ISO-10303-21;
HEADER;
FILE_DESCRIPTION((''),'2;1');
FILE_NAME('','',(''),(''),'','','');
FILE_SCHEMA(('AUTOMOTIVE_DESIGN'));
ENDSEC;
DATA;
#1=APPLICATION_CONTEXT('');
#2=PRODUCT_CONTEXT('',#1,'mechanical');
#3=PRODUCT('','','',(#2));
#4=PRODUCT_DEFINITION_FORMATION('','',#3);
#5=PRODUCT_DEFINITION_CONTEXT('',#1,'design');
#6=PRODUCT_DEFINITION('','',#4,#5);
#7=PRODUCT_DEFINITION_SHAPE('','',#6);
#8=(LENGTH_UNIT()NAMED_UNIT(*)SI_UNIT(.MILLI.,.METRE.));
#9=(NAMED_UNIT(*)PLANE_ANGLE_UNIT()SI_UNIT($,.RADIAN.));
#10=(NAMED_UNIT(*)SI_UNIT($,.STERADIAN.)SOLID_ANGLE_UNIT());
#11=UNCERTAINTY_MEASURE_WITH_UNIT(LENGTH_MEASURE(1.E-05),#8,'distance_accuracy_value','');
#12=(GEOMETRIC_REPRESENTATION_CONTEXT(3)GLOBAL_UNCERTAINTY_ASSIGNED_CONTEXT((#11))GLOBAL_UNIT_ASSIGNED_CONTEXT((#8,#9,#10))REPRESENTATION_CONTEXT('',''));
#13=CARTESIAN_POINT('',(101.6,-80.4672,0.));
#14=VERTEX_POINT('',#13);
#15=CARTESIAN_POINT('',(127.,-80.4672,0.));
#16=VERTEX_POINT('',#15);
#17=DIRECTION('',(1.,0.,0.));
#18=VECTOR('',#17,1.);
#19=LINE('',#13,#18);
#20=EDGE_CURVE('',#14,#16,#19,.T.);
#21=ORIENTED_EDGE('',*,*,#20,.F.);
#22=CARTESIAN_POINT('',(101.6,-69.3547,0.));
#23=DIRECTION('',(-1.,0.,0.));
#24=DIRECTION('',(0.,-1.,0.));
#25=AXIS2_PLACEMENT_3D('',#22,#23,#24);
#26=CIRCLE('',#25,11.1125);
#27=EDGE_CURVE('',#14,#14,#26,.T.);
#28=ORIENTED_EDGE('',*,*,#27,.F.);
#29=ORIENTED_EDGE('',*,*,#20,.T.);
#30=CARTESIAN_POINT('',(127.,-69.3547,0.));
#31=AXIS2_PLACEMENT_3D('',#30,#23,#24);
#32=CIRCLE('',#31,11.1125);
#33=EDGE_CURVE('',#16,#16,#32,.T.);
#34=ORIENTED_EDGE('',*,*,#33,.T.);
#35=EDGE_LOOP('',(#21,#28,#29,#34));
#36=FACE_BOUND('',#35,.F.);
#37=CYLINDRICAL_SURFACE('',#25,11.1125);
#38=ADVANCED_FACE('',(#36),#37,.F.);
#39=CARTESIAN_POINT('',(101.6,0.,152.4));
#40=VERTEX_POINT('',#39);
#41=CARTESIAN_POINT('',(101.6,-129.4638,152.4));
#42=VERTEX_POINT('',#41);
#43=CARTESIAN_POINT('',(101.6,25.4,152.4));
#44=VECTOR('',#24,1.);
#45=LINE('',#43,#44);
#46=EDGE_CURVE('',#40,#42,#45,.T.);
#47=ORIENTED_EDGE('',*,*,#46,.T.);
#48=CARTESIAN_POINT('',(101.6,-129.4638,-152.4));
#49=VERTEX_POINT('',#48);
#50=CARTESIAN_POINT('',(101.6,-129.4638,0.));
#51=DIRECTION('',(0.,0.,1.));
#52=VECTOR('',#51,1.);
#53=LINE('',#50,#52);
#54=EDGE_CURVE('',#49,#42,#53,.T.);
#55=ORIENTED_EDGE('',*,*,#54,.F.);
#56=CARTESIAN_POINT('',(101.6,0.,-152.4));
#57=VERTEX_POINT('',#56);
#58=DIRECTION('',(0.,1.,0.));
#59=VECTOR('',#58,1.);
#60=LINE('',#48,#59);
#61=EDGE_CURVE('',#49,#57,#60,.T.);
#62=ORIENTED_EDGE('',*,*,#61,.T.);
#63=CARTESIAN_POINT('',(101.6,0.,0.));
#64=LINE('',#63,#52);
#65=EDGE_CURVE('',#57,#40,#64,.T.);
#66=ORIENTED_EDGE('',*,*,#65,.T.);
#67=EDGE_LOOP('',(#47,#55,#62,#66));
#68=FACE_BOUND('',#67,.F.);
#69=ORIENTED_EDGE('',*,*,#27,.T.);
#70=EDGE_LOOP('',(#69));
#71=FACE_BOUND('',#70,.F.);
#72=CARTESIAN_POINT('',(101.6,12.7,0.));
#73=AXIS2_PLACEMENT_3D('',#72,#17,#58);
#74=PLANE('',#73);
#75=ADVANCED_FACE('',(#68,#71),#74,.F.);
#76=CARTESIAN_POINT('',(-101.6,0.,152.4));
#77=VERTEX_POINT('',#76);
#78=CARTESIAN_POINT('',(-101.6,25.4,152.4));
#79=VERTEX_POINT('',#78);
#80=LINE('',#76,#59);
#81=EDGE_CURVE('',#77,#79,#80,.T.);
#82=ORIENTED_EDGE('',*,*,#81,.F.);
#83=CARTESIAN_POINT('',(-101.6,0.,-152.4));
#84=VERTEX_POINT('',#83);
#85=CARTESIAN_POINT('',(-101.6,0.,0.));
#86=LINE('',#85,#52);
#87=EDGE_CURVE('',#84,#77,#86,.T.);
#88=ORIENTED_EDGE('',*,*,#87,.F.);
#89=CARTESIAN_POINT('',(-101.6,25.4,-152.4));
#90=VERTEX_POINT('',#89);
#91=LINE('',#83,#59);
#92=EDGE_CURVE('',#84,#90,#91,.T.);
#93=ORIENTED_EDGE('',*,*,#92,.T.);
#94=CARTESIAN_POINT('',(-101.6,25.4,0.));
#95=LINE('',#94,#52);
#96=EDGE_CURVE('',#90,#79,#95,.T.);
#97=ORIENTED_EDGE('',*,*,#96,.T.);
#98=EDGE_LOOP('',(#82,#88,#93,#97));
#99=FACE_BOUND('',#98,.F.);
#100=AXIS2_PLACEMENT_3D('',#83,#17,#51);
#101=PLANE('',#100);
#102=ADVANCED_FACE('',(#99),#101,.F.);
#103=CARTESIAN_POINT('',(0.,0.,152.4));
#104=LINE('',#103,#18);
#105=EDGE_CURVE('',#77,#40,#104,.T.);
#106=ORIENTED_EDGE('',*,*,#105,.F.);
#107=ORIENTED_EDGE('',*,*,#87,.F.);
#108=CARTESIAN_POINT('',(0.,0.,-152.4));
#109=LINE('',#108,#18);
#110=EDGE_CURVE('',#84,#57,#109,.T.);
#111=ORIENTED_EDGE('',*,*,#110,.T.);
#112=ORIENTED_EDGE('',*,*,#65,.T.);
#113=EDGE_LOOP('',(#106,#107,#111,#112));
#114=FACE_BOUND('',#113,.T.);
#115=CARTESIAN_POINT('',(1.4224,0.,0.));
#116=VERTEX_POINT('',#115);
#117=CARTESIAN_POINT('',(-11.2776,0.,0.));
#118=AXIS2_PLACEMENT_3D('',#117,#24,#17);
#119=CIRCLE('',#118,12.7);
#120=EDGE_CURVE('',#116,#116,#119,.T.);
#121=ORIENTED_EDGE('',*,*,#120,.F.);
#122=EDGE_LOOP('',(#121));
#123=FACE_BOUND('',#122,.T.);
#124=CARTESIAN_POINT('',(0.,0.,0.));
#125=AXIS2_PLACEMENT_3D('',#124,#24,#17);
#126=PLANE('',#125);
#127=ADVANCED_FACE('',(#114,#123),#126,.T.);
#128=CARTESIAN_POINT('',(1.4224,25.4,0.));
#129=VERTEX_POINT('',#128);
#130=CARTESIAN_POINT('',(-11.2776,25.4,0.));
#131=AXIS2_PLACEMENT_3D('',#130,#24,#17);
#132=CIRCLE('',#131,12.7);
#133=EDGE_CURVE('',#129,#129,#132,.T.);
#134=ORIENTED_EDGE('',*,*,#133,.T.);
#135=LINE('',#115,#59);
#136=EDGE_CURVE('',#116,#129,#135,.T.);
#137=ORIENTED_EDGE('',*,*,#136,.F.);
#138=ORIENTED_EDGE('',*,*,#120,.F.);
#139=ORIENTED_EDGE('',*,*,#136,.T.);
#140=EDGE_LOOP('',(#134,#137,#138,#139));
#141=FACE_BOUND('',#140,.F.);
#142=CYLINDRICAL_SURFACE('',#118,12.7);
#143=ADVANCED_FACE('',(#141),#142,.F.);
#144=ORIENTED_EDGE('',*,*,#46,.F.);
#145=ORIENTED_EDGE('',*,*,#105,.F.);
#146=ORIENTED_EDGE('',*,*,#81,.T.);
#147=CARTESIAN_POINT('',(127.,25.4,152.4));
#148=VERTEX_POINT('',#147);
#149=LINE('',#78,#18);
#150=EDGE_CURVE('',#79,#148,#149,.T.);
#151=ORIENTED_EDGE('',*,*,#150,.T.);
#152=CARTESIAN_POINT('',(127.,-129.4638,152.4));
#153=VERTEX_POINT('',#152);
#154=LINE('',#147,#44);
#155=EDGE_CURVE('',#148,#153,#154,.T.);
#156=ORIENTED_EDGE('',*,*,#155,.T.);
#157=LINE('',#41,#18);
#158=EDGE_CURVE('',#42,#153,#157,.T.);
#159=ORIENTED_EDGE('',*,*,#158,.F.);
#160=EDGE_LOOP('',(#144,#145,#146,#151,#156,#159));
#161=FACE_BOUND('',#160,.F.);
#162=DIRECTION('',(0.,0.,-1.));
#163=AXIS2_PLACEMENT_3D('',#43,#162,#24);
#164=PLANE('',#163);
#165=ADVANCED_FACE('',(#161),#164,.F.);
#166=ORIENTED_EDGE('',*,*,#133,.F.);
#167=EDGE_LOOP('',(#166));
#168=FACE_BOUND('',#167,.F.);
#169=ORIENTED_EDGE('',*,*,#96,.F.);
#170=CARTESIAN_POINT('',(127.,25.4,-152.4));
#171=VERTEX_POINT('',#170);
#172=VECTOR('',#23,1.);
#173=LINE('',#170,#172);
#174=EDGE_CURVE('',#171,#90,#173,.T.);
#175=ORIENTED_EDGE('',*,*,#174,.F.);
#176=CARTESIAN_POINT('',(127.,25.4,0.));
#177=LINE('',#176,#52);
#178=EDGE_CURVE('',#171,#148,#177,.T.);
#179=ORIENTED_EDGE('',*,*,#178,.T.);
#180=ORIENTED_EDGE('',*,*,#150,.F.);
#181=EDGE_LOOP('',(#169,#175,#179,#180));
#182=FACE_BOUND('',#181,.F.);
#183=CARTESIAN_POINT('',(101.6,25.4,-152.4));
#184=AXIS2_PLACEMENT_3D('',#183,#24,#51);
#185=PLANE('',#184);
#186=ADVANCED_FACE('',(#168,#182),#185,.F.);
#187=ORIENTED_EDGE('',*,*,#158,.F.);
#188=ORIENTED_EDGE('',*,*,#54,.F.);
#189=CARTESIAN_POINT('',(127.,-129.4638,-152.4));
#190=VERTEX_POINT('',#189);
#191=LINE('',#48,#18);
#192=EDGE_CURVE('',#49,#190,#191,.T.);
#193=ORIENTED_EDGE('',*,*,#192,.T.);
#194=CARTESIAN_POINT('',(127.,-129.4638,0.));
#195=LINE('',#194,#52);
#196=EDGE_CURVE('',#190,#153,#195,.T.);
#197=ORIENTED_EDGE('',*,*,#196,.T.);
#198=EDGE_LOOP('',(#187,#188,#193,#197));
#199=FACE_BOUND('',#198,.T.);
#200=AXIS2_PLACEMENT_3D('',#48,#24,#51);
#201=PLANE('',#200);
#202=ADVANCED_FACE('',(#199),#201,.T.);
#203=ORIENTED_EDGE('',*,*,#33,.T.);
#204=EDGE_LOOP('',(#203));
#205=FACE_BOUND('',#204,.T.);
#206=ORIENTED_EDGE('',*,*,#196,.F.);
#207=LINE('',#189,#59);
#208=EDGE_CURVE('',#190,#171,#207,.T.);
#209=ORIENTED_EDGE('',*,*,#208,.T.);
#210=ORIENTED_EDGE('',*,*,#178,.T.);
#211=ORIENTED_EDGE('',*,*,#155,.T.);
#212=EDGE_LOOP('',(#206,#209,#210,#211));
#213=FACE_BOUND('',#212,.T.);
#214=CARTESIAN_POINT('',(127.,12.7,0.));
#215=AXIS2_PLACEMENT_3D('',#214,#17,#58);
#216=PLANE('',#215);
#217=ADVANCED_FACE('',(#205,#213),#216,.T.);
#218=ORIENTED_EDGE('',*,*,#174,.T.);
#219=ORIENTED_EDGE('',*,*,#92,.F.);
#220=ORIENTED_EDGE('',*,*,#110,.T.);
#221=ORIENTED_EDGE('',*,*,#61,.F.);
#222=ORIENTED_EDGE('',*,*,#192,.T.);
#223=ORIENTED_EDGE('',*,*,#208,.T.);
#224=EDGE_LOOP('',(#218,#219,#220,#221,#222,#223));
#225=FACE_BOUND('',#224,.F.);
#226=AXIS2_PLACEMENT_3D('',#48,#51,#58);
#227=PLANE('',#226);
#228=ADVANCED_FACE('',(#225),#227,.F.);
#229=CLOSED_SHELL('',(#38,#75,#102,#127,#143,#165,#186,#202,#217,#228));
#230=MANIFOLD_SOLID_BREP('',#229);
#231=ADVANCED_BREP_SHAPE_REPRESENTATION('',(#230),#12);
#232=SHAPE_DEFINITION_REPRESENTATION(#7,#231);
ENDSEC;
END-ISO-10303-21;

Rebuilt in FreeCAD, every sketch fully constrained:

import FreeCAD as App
import Part
import Sketcher
from FreeCAD import Vector
Q = App.Units.Quantity

doc = App.newDocument("Part")
body = doc.addObject("PartDesign::Body", "Body")

sketch1 = body.newObject("Sketcher::SketchObject", "Sketch")
sketch1.AttachmentSupport = (doc.getObject("XZ_Plane"), [""])
sketch1.MapMode = "FlatFace"
sketch1.addGeometry(Part.LineSegment(Vector(-102, 152, 0), Vector(-102, -152, 0)), False)
sketch1.addGeometry(Part.LineSegment(Vector(-102, -152, 0), Vector(102, -152, 0)), False)
sketch1.addGeometry(Part.LineSegment(Vector(102, -152, 0), Vector(102, 152, 0)), False)
sketch1.addGeometry(Part.LineSegment(Vector(102, 152, 0), Vector(-102, 152, 0)), False)
sketch1.addConstraint(Sketcher.Constraint("Coincident", 0, 2, 1, 1))
sketch1.addConstraint(Sketcher.Constraint("Coincident", 1, 2, 2, 1))
sketch1.addConstraint(Sketcher.Constraint("Coincident", 2, 2, 3, 1))
sketch1.addConstraint(Sketcher.Constraint("Coincident", 3, 2, 0, 1))
sketch1.addConstraint(Sketcher.Constraint("Vertical", 0))
sketch1.addConstraint(Sketcher.Constraint("Horizontal", 1))
sketch1.addConstraint(Sketcher.Constraint("Vertical", 2))
sketch1.addConstraint(Sketcher.Constraint("Horizontal", 3))
sketch1.addConstraint(Sketcher.Constraint("Symmetric", 0, 2, 2, 2, -1, 1))
sketch1.addConstraint(Sketcher.Constraint("DistanceX", 1, 1, 1, 2, Q("8 in")))
sketch1.addConstraint(Sketcher.Constraint("DistanceY", 0, 2, 0, 1, Q("12 in")))
pad1 = body.newObject("PartDesign::Pad", "Pad")
pad1.Profile = sketch1
pad1.Length = Q("1 in")
pad1.Reversed = True

sketch2 = body.newObject("Sketcher::SketchObject", "Sketch001")
sketch2.AttachmentSupport = (doc.getObject("YZ_Plane"), [""])
sketch2.MapMode = "FlatFace"
sketch2.AttachmentOffset = App.Placement(Vector(0, 0, 4 * 25.4), App.Rotation())
sketch2.addGeometry(Part.LineSegment(Vector(25, -152, 0), Vector(25, 152, 0)), False)
sketch2.addGeometry(Part.LineSegment(Vector(25, 152, 0), Vector(-129, 152, 0)), False)
sketch2.addGeometry(Part.LineSegment(Vector(-129, 152, 0), Vector(-129, -152, 0)), False)
sketch2.addGeometry(Part.LineSegment(Vector(-129, -152, 0), Vector(25, -152, 0)), False)
sketch2.addConstraint(Sketcher.Constraint("Coincident", 0, 2, 1, 1))
sketch2.addConstraint(Sketcher.Constraint("Coincident", 1, 2, 2, 1))
sketch2.addConstraint(Sketcher.Constraint("Coincident", 2, 2, 3, 1))
sketch2.addConstraint(Sketcher.Constraint("Coincident", 3, 2, 0, 1))
sketch2.addConstraint(Sketcher.Constraint("Vertical", 0))
sketch2.addConstraint(Sketcher.Constraint("Horizontal", 1))
sketch2.addConstraint(Sketcher.Constraint("Vertical", 2))
sketch2.addConstraint(Sketcher.Constraint("Horizontal", 3))
sketch2.addConstraint(Sketcher.Constraint("DistanceY", 0, 1, 0, 2, Q("12 in")))
sketch2.addConstraint(Sketcher.Constraint("DistanceX", -1, 1, 0, 2, Q("1 in")))
sketch2.addConstraint(Sketcher.Constraint("DistanceY", -1, 1, 0, 2, Q("6 in")))
sketch2.addConstraint(Sketcher.Constraint("DistanceX", 1, 2, 1, 1, Q("6.097 in")))
pad2 = body.newObject("PartDesign::Pad", "Pad001")
pad2.Profile = sketch2
pad2.Length = Q("1 in")

sketch3 = body.newObject("Sketcher::SketchObject", "Sketch002")
sketch3.AttachmentSupport = (doc.getObject("XZ_Plane"), [""])
sketch3.MapMode = "FlatFace"
sketch3.addGeometry(Part.Circle(Vector(-11, 0, 0), Vector(0, 0, 1), 13), False)
sketch3.addConstraint(Sketcher.Constraint("PointOnObject", 0, 3, -1))
sketch3.addConstraint(Sketcher.Constraint("Diameter", 0, Q("1 in")))
sketch3.addConstraint(Sketcher.Constraint("DistanceX", 0, 3, -1, 1, Q("0.444 in")))
pocket1 = body.newObject("PartDesign::Pocket", "Pocket")
pocket1.Profile = sketch3
pocket1.Type = "ThroughAll"

sketch4 = body.newObject("Sketcher::SketchObject", "Sketch003")
sketch4.AttachmentSupport = (doc.getObject("YZ_Plane"), [""])
sketch4.MapMode = "FlatFace"
sketch4.AttachmentOffset = App.Placement(Vector(0, 0, 4 * 25.4), App.Rotation())
sketch4.addGeometry(Part.Circle(Vector(-69, 0, 0), Vector(0, 0, 1), 11), False)
sketch4.addConstraint(Sketcher.Constraint("PointOnObject", 0, 3, -1))
sketch4.addConstraint(Sketcher.Constraint("Diameter", 0, Q("0.875 in")))
sketch4.addConstraint(Sketcher.Constraint("DistanceX", 0, 3, -1, 1, Q("2.7305 in")))
pocket2 = body.newObject("PartDesign::Pocket", "Pocket001")
pocket2.Profile = sketch4
pocket2.Type = "ThroughAll"
pocket2.Reversed = True

doc.recompute()
